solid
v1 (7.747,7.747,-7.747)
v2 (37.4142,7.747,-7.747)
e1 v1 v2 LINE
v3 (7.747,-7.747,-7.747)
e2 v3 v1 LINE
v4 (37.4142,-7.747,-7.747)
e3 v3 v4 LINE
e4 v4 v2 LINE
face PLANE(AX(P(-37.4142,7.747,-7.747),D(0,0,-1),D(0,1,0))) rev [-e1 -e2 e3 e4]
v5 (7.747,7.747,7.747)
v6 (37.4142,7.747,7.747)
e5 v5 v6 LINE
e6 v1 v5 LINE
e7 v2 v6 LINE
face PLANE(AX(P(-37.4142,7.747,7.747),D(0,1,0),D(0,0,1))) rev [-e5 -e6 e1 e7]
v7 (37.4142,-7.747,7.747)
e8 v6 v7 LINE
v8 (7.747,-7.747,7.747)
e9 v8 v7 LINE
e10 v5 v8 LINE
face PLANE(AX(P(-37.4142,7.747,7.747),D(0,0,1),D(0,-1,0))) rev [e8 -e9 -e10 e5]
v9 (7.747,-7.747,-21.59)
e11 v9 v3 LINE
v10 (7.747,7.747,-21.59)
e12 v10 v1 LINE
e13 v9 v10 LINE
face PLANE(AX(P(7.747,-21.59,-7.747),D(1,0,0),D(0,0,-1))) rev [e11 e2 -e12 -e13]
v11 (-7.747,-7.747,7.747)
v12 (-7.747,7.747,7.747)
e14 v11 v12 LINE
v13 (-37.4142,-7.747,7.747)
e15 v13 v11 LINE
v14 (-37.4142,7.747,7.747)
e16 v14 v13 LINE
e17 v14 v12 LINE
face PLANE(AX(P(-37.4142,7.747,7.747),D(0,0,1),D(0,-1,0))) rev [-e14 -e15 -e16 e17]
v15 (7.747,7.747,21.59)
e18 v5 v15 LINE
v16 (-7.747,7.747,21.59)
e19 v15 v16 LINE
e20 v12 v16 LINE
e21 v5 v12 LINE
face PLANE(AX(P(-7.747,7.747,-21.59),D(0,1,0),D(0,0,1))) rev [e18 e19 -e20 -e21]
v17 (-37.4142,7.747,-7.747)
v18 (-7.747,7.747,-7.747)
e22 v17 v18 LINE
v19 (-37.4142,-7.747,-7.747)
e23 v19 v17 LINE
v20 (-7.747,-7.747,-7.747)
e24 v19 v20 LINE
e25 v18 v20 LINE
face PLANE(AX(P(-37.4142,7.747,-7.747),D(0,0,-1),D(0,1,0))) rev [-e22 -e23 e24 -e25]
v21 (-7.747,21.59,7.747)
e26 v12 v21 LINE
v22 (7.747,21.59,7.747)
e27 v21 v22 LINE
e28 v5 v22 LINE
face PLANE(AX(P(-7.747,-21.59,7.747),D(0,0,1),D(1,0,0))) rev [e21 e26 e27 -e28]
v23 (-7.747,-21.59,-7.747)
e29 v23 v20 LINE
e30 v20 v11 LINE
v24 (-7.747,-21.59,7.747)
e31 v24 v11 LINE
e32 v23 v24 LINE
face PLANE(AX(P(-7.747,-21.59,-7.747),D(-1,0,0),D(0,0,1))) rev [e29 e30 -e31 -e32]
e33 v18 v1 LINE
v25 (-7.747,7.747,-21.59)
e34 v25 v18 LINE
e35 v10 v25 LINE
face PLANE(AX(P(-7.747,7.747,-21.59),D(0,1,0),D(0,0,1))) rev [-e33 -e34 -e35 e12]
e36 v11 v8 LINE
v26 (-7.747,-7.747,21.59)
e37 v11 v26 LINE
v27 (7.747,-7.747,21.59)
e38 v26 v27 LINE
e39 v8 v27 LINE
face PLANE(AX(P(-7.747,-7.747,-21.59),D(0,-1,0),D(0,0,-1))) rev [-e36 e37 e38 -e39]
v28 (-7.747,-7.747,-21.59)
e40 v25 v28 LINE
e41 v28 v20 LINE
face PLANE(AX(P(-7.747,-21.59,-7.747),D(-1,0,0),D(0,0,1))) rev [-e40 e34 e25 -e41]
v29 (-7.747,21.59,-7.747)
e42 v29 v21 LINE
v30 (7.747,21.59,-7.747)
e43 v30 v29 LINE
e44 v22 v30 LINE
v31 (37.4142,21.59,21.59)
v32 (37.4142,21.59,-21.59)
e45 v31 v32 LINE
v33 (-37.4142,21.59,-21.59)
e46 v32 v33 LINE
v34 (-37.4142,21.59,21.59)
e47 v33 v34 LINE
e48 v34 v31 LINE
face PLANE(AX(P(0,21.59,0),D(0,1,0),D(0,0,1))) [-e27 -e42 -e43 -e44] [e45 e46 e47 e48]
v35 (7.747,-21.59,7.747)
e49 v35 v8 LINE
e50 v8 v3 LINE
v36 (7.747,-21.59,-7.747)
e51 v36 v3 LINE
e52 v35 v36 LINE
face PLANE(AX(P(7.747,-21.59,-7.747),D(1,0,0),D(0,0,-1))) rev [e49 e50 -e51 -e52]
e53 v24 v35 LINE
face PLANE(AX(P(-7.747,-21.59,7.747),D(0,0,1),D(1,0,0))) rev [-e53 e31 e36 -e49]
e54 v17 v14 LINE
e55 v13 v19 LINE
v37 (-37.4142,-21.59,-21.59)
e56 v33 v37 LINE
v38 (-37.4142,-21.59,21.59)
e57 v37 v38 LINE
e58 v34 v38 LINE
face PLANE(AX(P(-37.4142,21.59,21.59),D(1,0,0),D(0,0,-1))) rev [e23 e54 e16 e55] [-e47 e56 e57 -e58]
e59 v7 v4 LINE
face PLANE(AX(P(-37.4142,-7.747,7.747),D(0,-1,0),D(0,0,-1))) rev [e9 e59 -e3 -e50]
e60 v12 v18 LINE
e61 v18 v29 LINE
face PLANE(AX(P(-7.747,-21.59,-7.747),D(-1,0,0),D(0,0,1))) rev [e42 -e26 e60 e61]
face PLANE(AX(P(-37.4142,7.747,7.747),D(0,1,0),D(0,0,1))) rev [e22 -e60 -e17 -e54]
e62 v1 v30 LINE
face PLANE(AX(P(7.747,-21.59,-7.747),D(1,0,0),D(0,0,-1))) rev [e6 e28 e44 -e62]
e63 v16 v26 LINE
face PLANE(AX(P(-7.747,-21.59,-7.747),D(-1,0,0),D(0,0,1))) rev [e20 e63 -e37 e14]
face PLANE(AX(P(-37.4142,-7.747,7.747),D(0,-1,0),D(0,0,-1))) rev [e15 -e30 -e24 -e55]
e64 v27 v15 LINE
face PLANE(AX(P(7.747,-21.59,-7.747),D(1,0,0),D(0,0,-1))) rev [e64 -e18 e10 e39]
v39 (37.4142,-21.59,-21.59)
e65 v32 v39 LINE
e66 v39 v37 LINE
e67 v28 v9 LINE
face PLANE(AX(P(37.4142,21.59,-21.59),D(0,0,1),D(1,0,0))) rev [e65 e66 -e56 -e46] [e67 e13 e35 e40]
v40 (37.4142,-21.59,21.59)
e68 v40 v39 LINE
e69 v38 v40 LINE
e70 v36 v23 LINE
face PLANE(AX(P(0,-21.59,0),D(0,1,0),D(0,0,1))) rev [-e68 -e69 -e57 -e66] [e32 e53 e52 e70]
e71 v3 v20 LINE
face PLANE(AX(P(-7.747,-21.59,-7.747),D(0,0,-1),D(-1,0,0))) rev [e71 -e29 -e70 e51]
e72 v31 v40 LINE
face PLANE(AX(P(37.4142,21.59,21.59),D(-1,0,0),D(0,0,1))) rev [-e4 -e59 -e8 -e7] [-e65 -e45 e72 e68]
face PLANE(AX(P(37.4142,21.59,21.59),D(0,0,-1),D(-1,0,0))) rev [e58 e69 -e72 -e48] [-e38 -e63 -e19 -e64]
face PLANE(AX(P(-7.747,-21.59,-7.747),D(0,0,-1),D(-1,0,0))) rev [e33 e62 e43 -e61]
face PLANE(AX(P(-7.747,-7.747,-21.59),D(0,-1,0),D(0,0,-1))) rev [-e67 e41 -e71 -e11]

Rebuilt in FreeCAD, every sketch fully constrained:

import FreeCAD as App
import Part
import Sketcher

V = App.Vector
Q = App.Units.Quantity


def add_polygon(sketch, points):
    """Adds a closed chain of lines whose ends are joined by coincident constraints."""
    first, n = sketch.GeometryCount, len(points)
    for a, b in zip(points, points[1:] + points[:1]):
        sketch.addGeometry(Part.LineSegment(App.Vector(*a, 0), App.Vector(*b, 0)), False)
    for i in range(n):
        sketch.addConstraint(Sketcher.Constraint("Coincident", first + i, 2, first + (i + 1) % n, 1))

doc = App.newDocument("Part")
body = doc.addObject("PartDesign::Body", "Body")

# Sketch on XZ plane
sketch1 = body.newObject("Sketcher::SketchObject", "Sketch")
sketch1.AttachmentSupport = (doc.getObject("XZ_Plane"), [""])
sketch1.MapMode = "FlatFace"
add_polygon(sketch1, [(-37, -22), (-37, 22), (37, 22), (37, -22)])  # lines 0-3
sketch1.addConstraint([
    Sketcher.Constraint("Vertical", 0),
    Sketcher.Constraint("Horizontal", 1),
    Sketcher.Constraint("Vertical", 2),
    Sketcher.Constraint("Horizontal", 3),
    Sketcher.Constraint("Symmetric", 0, 2, 2, 2, -1, 1),
    Sketcher.Constraint("DistanceY", 0, 1, 0, 2, Q("1.7 in")),
    Sketcher.Constraint("DistanceX", 1, 1, 1, 2, Q("2.946 in")),
])
pad1 = body.newObject("PartDesign::Pad", "Pad")
pad1.Profile = sketch1
pad1.Length = Q("1.7 in")
pad1.Midplane = True

# Sketch on XZ plane
sketch2 = body.newObject("Sketcher::SketchObject", "Sketch001")
sketch2.AttachmentSupport = (doc.getObject("XZ_Plane"), [""])
sketch2.MapMode = "FlatFace"
sketch2.AttachmentOffset = App.Placement(V(0, 0, -0.85 * 25.4), App.Rotation())
add_polygon(sketch2, [(-8, -8), (-8, 8), (8, 8), (8, -8)])  # lines 0-3
sketch2.addConstraint([
    Sketcher.Constraint("Vertical", 0),
    Sketcher.Constraint("Horizontal", 1),
    Sketcher.Constraint("Vertical", 2),
    Sketcher.Constraint("Horizontal", 3),
    Sketcher.Constraint("Symmetric", 0, 2, 2, 2, -1, 1),
    Sketcher.Constraint("Equal", 3, 0),
    Sketcher.Constraint("DistanceX", 1, 1, 1, 2, Q("0.61 in")),
])
pocket1 = body.newObject("PartDesign::Pocket", "Pocket")
pocket1.Profile = sketch2
pocket1.Type = "ThroughAll"
pocket1.Reversed = True

# Sketch on XY plane
sketch3 = body.newObject("Sketcher::SketchObject", "Sketch002")
sketch3.AttachmentSupport = (doc.getObject("XY_Plane"), [""])
sketch3.MapMode = "FlatFace"
sketch3.AttachmentOffset = App.Placement(V(0, 0, 0.85 * 25.4), App.Rotation())
add_polygon(sketch3, [(-8, 8), (-8, -8), (8, -8), (8, 8)])  # lines 0-3
sketch3.addConstraint([
    Sketcher.Constraint("Vertical", 0),
    Sketcher.Constraint("Horizontal", 1),
    Sketcher.Constraint("Vertical", 2),
    Sketcher.Constraint("Horizontal", 3),
    Sketcher.Constraint("Symmetric", 0, 2, 2, 2, -1, 1),
    Sketcher.Constraint("Equal", 3, 0),
    Sketcher.Constraint("DistanceX", 1, 1, 1, 2, Q("0.61 in")),
])
pocket2 = body.newObject("PartDesign::Pocket", "Pocket001")
pocket2.Profile = sketch3
pocket2.Type = "ThroughAll"

# Sketch on YZ plane
sketch4 = body.newObject("Sketcher::SketchObject", "Sketch003")
sketch4.AttachmentSupport = (doc.getObject("YZ_Plane"), [""])
sketch4.MapMode = "FlatFace"
sketch4.AttachmentOffset = App.Placement(V(0, 0, 1.473 * 25.4), App.Rotation())
add_polygon(sketch4, [(8, 8), (-8, 8), (-8, -8), (8, -8)])  # lines 0-3
sketch4.addConstraint([
    Sketcher.Constraint("Horizontal", 0),
    Sketcher.Constraint("Vertical", 1),
    Sketcher.Constraint("Horizontal", 2),
    Sketcher.Constraint("Vertical", 3),
    Sketcher.Constraint("Symmetric", 0, 2, 2, 2, -1, 1),
    Sketcher.Constraint("Equal", 2, 1),
    Sketcher.Constraint("DistanceX", 0, 2, 0, 1, Q("0.61 in")),
])
pocket3 = body.newObject("PartDesign::Pocket", "Pocket002")
pocket3.Profile = sketch4
pocket3.Type = "ThroughAll"

doc.recompute()
